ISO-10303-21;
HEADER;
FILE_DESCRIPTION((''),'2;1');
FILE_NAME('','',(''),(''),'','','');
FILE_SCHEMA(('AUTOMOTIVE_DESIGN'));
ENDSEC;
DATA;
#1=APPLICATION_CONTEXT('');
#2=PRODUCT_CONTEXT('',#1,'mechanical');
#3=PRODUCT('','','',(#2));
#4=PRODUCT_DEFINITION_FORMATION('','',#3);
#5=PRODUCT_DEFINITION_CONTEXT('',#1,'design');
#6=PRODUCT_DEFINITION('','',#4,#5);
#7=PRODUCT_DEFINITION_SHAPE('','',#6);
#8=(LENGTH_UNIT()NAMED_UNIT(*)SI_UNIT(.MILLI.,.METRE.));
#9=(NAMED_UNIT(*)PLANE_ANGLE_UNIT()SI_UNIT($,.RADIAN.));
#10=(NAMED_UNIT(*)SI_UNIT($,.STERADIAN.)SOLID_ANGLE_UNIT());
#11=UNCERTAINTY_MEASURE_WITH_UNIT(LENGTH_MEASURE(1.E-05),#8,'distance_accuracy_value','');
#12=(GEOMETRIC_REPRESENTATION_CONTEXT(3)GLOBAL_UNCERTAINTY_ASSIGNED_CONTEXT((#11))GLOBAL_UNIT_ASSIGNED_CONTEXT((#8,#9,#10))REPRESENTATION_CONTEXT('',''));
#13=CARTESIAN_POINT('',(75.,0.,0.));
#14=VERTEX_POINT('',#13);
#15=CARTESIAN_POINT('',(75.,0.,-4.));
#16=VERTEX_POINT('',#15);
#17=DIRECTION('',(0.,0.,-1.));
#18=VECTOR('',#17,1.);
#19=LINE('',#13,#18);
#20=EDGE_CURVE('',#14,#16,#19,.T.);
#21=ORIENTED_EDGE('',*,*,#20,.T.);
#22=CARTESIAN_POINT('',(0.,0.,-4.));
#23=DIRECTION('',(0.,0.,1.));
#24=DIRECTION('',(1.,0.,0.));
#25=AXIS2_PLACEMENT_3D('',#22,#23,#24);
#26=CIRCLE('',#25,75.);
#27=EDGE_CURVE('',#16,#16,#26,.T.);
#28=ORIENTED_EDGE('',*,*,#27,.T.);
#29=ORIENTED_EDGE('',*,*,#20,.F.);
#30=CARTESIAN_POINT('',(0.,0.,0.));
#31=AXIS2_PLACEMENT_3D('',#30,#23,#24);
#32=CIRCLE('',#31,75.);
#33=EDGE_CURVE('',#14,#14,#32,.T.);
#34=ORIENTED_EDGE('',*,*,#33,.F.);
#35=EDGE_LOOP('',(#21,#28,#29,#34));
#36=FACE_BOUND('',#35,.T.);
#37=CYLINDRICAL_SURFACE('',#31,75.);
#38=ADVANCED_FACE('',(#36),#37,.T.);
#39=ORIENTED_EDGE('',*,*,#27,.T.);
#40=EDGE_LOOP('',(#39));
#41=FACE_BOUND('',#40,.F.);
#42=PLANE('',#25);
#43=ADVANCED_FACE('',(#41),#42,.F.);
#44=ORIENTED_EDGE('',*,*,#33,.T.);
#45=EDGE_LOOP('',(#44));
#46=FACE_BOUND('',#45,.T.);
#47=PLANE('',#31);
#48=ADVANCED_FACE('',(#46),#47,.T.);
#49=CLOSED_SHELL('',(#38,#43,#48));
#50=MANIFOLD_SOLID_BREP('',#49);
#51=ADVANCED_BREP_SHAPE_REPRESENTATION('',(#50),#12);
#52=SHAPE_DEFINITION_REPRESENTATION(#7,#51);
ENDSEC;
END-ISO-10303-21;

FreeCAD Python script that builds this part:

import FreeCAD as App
import Part
import Sketcher
from FreeCAD import Vector
Q = App.Units.Quantity

doc = App.newDocument("Part")
body = doc.addObject("PartDesign::Body", "Body")

sketch1 = body.newObject("Sketcher::SketchObject", "Sketch")
sketch1.AttachmentSupport = (doc.getObject("XY_Plane"), [""])
sketch1.MapMode = "FlatFace"
sketch1.addGeometry(Part.Circle(Vector(0, 0, 0), Vector(0, 0, 1), 75), False)
sketch1.addConstraint([
    Sketcher.Constraint("Coincident", 0, 3, -1, 1),
    Sketcher.Constraint("Diameter", 0, Q("150 mm")),
])
pad1 = body.newObject("PartDesign::Pad", "Pad")
pad1.Profile = sketch1
pad1.Length = 4
pad1.Reversed = True

doc.recompute()
